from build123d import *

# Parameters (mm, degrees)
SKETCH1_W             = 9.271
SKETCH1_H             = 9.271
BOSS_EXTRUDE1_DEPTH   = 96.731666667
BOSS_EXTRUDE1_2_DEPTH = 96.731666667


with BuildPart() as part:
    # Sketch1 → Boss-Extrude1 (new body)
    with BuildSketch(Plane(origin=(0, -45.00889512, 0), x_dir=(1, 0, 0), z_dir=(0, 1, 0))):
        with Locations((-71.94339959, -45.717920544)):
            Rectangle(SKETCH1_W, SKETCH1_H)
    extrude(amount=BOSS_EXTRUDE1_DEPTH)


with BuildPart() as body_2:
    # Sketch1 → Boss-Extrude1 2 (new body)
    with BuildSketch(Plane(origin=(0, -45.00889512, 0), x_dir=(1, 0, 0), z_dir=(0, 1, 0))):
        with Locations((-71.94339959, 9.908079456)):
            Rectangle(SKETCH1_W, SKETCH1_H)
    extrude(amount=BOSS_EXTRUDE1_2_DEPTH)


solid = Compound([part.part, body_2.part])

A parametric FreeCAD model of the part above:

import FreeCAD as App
import Part
import Sketcher
from FreeCAD import Vector
Q = App.Units.Quantity


def add_polygon(sketch, points):
    """Adds a closed chain of lines whose ends are joined by coincident constraints."""
    first, n = sketch.GeometryCount, len(points)
    for a, b in zip(points, points[1:] + points[:1]):
        sketch.addGeometry(Part.LineSegment(App.Vector(*a, 0), App.Vector(*b, 0)), False)
    for i in range(n):
        sketch.addConstraint(Sketcher.Constraint("Coincident", first + i, 2, first + (i + 1) % n, 1))

doc = App.newDocument("Part")
body = doc.addObject("PartDesign::Body", "Body")

sketch1 = body.newObject("Sketcher::SketchObject", "Sketch")
sketch1.AttachmentSupport = (doc.getObject("XZ_Plane"), [""])
sketch1.MapMode = "FlatFace"
sketch1.AttachmentOffset = App.Placement(Vector(0, 0, 45.008895), App.Rotation())
add_polygon(sketch1, [(-77, 41), (-77, 50), (-67, 50), (-67, 41)])
sketch1.addConstraint([
    Sketcher.Constraint("Vertical", 0),
    Sketcher.Constraint("Horizontal", 1),
    Sketcher.Constraint("Vertical", 2),
    Sketcher.Constraint("Horizontal", 3),
    Sketcher.Constraint("Equal", 3, 0),
    Sketcher.Constraint("DistanceX", 1, 1, 1, 2, Q("0.365 in")),
    Sketcher.Constraint("DistanceX", 0, 2, -1, 1, 76.5789),
    Sketcher.Constraint("DistanceY", -1, 1, 0, 2, 50.353421),
])
pad1 = body.newObject("PartDesign::Pad", "Pad")
pad1.Profile = sketch1
pad1.Length = 96.731667
pad1.Reversed = True
body2 = doc.addObject("PartDesign::Body", "Body001")

sketch2 = body2.newObject("Sketcher::SketchObject", "Sketch001")
sketch2.AttachmentSupport = (doc.getObject("XZ_Plane001"), [""])
sketch2.MapMode = "FlatFace"
sketch2.AttachmentOffset = App.Placement(Vector(0, 0, 45.008895), App.Rotation())
add_polygon(sketch2, [(-77, -15), (-77, -5), (-67, -5), (-67, -15)])
sketch2.addConstraint([
    Sketcher.Constraint("Vertical", 0),
    Sketcher.Constraint("Horizontal", 1),
    Sketcher.Constraint("Vertical", 2),
    Sketcher.Constraint("Horizontal", 3),
    Sketcher.Constraint("Equal", 3, 0),
    Sketcher.Constraint("DistanceX", 1, 1, 1, 2, Q("0.365 in")),
    Sketcher.Constraint("DistanceX", 0, 2, -1, 1, 76.5789),
    Sketcher.Constraint("DistanceY", 0, 2, -1, 1, 5.272579),
])
pad2 = body2.newObject("PartDesign::Pad", "Pad001")
pad2.Profile = sketch2
pad2.Length = 96.731667
pad2.Reversed = True

doc.recompute()
